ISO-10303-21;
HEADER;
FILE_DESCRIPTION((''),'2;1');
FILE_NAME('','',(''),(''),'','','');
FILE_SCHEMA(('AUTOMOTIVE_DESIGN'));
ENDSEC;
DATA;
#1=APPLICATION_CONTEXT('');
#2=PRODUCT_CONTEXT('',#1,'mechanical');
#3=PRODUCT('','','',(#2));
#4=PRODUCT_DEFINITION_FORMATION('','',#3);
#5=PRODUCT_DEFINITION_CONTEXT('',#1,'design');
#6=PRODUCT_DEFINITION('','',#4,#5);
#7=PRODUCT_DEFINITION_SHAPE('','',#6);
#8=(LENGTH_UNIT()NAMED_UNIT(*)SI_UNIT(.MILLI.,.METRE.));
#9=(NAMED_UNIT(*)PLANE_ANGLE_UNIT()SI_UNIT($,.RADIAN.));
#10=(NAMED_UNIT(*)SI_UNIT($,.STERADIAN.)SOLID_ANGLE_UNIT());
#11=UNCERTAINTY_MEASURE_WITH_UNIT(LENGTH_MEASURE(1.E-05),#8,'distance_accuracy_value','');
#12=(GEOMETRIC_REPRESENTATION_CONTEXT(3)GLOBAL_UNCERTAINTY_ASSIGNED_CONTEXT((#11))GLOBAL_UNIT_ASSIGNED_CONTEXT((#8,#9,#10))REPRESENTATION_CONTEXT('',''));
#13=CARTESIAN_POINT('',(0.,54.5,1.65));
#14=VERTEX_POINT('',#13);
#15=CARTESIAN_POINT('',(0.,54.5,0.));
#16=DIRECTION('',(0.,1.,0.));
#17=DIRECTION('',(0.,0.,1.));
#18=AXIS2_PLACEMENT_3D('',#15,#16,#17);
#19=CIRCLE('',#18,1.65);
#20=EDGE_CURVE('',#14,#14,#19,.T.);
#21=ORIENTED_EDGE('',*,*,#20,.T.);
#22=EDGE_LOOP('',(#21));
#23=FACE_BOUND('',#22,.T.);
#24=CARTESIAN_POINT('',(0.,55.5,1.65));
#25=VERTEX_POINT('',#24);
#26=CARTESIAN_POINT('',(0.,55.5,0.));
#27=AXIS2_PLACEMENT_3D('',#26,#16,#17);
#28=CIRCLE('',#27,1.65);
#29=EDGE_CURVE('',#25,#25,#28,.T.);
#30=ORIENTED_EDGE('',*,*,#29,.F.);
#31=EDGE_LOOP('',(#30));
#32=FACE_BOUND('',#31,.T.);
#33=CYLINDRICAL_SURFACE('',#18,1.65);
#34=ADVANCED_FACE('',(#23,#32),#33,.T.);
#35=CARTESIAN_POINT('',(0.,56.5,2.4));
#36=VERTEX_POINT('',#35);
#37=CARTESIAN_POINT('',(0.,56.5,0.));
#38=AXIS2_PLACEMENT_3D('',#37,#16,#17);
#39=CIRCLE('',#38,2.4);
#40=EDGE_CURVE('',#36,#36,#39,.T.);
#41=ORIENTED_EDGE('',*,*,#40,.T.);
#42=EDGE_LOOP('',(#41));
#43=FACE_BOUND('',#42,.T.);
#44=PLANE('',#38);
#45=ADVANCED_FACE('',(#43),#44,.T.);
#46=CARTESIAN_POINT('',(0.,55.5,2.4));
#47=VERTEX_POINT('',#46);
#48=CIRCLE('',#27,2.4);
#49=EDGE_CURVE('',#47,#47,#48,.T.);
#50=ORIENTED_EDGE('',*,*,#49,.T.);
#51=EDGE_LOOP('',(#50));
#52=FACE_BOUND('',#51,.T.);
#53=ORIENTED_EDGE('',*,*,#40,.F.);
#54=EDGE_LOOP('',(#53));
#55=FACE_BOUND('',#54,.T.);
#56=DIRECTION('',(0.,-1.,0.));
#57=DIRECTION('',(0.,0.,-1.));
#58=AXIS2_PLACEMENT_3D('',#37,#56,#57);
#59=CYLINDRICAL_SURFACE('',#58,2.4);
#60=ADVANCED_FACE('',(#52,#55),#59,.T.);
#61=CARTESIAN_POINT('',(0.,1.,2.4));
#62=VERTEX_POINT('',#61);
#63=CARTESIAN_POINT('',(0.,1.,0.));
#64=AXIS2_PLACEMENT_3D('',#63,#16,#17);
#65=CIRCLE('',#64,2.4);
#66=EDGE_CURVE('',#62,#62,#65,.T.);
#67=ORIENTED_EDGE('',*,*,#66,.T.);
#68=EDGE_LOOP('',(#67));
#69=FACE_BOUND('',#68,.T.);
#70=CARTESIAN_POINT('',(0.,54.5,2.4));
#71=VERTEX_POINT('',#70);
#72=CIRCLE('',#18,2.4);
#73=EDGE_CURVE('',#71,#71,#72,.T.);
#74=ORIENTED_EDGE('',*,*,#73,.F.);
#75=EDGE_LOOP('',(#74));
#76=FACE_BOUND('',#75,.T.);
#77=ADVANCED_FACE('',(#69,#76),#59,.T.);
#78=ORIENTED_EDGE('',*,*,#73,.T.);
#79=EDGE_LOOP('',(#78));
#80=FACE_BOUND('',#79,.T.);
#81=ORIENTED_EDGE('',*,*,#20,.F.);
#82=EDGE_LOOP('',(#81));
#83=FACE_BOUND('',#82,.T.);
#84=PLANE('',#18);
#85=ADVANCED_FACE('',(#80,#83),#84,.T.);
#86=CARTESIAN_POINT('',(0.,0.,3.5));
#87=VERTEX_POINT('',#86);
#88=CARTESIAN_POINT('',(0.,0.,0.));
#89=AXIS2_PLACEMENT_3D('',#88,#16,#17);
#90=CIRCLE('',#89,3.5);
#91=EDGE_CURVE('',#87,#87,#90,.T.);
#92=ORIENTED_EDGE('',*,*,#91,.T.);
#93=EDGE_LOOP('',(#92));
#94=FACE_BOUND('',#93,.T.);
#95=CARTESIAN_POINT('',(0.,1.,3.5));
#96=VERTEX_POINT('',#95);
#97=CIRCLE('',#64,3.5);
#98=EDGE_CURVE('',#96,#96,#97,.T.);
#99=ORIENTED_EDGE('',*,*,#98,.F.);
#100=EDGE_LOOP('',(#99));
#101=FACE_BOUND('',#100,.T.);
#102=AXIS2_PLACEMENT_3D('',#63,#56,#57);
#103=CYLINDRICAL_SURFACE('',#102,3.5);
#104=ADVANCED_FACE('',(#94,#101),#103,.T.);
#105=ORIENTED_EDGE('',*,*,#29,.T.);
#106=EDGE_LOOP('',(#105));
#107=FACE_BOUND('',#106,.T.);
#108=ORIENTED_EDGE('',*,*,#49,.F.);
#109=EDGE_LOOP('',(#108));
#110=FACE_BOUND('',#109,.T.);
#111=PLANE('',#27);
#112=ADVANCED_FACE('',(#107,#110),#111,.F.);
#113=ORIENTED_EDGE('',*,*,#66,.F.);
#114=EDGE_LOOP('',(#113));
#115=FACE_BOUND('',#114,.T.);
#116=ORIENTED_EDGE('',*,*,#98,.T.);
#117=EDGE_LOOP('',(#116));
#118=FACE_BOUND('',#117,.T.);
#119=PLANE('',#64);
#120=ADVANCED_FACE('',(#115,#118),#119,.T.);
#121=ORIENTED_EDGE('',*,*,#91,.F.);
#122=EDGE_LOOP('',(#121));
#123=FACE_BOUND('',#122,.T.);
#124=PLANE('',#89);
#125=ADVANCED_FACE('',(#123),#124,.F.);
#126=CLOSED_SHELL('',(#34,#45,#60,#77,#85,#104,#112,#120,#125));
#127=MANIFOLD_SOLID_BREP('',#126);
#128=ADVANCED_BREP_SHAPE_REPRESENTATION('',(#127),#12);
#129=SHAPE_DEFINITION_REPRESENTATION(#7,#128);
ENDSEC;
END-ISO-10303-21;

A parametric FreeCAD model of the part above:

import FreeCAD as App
import Part
import Sketcher

V = App.Vector

doc = App.newDocument("Part")
body = doc.addObject("PartDesign::Body", "Body")

# Sketch on XZ plane
sketch1 = body.newObject("Sketcher::SketchObject", "Sketch")
sketch1.AttachmentSupport = (doc.getObject("XZ_Plane"), [""])
sketch1.MapMode = "FlatFace"
sketch1.addGeometry([
    Part.Circle(V(0, 0, 0), V(0, 0, 1), 3.5),
    Part.Circle(V(0, 0, 0), V(0, 0, 1), 2.4),
], False)
sketch1.addConstraint([
    Sketcher.Constraint("Coincident", 0, 3, -1, 1),
    Sketcher.Constraint("Coincident", 1, 3, -1, 1),
    Sketcher.Constraint("Diameter", 0, 7.0),
    Sketcher.Constraint("Diameter", 1, 4.8),
])
pad1 = body.newObject("PartDesign::Pad", "Pad")
pad1.Profile = sketch1
pad1.Length = 1
pad1.Reversed = True

# Sketch on XZ plane
sketch2 = body.newObject("Sketcher::SketchObject", "Sketch001")
sketch2.AttachmentSupport = (doc.getObject("XZ_Plane"), [""])
sketch2.MapMode = "FlatFace"
sketch2.addGeometry(Part.Circle(V(0, 0, 0), V(0, 0, 1), 2.4), False)
sketch2.addConstraint([
    Sketcher.Constraint("Coincident", 0, 3, -1, 1),
    Sketcher.Constraint("Diameter", 0, 4.8),
])
pad2 = body.newObject("PartDesign::Pad", "Pad001")
pad2.Profile = sketch2
pad2.Length = 56.5
pad2.Reversed = True

# Sketch on XZ plane
sketch3 = body.newObject("Sketcher::SketchObject", "Sketch002")
sketch3.AttachmentSupport = (doc.getObject("XZ_Plane"), [""])
sketch3.MapMode = "FlatFace"
sketch3.AttachmentOffset = App.Placement(V(0, 0, -54.5), App.Rotation())
sketch3.addGeometry([
    Part.Circle(V(0, 0, 0), V(0, 0, 1), 2.4),
    Part.Circle(V(0, 0, 0), V(0, 0, 1), 1.65),
], False)
sketch3.addConstraint([
    Sketcher.Constraint("Coincident", 0, 3, -1, 1),
    Sketcher.Constraint("Coincident", 1, 3, -1, 1),
    Sketcher.Constraint("Diameter", 0, 4.8),
    Sketcher.Constraint("Diameter", 1, 3.3),
])
pocket1 = body.newObject("PartDesign::Pocket", "Pocket")
pocket1.Profile = sketch3
pocket1.Length = 1

doc.recompute()
